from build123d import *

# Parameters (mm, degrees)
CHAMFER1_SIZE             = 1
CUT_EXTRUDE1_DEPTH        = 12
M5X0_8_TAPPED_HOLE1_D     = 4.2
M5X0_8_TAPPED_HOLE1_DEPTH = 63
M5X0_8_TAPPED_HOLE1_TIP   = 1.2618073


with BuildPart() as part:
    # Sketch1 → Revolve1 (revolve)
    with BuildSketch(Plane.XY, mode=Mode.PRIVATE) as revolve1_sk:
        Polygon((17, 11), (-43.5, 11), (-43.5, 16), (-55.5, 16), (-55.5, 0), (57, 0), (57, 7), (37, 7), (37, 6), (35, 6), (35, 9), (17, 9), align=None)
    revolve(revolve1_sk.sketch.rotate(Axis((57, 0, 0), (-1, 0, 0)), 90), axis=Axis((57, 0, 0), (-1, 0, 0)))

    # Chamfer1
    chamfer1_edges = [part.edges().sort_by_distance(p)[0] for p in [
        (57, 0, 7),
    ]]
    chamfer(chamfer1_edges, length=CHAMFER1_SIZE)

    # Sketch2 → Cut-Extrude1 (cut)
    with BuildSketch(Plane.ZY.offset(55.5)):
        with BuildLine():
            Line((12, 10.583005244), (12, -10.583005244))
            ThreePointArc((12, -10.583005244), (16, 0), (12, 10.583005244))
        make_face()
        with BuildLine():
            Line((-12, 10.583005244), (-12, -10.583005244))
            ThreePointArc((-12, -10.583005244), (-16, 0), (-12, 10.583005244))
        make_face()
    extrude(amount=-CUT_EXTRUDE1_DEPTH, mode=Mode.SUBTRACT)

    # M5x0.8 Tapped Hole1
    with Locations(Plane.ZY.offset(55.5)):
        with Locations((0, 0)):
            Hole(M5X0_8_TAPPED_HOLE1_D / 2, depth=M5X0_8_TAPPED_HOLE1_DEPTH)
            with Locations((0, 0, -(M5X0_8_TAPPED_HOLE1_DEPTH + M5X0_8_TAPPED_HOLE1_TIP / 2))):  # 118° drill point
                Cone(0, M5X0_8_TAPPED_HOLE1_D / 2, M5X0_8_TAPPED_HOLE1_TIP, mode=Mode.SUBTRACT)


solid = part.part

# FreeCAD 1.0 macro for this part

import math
import FreeCAD as App
import Part
import Sketcher
from FreeCAD import Vector
Q = App.Units.Quantity


def edges_at(feature, points):
    """Names of the edges that pass closest to the given points."""
    edges = feature.Shape.Edges
    near = lambda p: min(range(len(edges)), key=lambda i: edges[i].distToShape(Part.Vertex(*p))[0])
    return sorted({f"Edge{near(p) + 1}" for p in points})


def add_polygon(sketch, points):
    """Adds a closed chain of lines whose ends are joined by coincident constraints."""
    first, n = sketch.GeometryCount, len(points)
    for a, b in zip(points, points[1:] + points[:1]):
        sketch.addGeometry(Part.LineSegment(App.Vector(*a, 0), App.Vector(*b, 0)), False)
    for i in range(n):
        sketch.addConstraint(Sketcher.Constraint("Coincident", first + i, 2, first + (i + 1) % n, 1))

doc = App.newDocument("Part")
params = doc.addObject("Spreadsheet::Sheet", "Params")
for row, (alias, value) in enumerate([
    ("sketch1_width", "12 mm"),
    ("sketch1_width2", "20 mm"),
    ("sketch1_width3", "2 mm"),
    ("sketch1_width4", "18 mm"),
    ("sketch1_height", "5 mm"),
    ("revolution_angle", "360 deg"),
    ("chamfer_size", "1 mm"),
    ("sketch2_radius", "16 mm"),
    ("pocket1_length", "12 mm"),
    ("sketch3_diameter", "4.2 mm"),
    ("hole_diameter", "4.2 mm"),
    ("hole_depth", "63 mm"),
], start=1):
    params.set(f"A{row}", alias)
    params.set(f"B{row}", "=" + value)
    params.setAlias(f"B{row}", alias)

body = doc.addObject("PartDesign::Body", "Body")

# Sketch on XY plane
sketch1 = doc.addObject("Sketcher::SketchObject", "Sketch")
body.addObject(sketch1)
sketch1.AttachmentSupport = (doc.XY_Plane, [""])
sketch1.MapMode = "FlatFace"
add_polygon(sketch1, [(17, 11), (-43.5, 11), (-43.5, 16), (-55.5, 16), (-55.5, 0), (57, 0), (57, 7), (37, 7), (37, 6), (35, 6), (35, 9), (17, 9)])  # lines 0-11
sketch1.addConstraint([
    Sketcher.Constraint("Horizontal", 0),
    Sketcher.Constraint("Vertical", 1),
    Sketcher.Constraint("Horizontal", 2),
    Sketcher.Constraint("Vertical", 3),
    Sketcher.Constraint("Horizontal", 4),
    Sketcher.Constraint("Vertical", 5),
    Sketcher.Constraint("Horizontal", 6),
    Sketcher.Constraint("Vertical", 7),
    Sketcher.Constraint("Horizontal", 8),
    Sketcher.Constraint("Vertical", 9),
    Sketcher.Constraint("Horizontal", 10),
    Sketcher.Constraint("Vertical", 11),
    Sketcher.Constraint("PointOnObject", 3, 2, -1),
    Sketcher.Constraint("Equal", 8, 11),
    Sketcher.Constraint("DistanceX", 2, 2, 2, 1, Q("12 mm")),
    Sketcher.Constraint("DistanceX", 6, 2, 6, 1, Q("20 mm")),
    Sketcher.Constraint("DistanceX", 8, 2, 8, 1, Q("2 mm")),
    Sketcher.Constraint("DistanceX", 10, 2, 10, 1, Q("18 mm")),
    Sketcher.Constraint("DistanceY", 1, 1, 1, 2, Q("5 mm")),
    Sketcher.Constraint("DistanceY", 3, 2, 3, 1, Q("16 mm")),
    Sketcher.Constraint("DistanceY", 5, 1, 5, 2, Q("7 mm")),
    Sketcher.Constraint("DistanceY", 7, 2, 7, 1, Q("1 mm")),
    Sketcher.Constraint("DistanceX", 0, 2, 0, 1, Q("60.5 mm")),
    Sketcher.Constraint("DistanceX", -1, 1, 4, 2, Q("57 mm")),
])
sketch1.setExpression("Constraints[26]", "Params.sketch1_width")
sketch1.setExpression("Constraints[27]", "Params.sketch1_width2")
sketch1.setExpression("Constraints[28]", "Params.sketch1_width3")
sketch1.setExpression("Constraints[29]", "Params.sketch1_width4")
sketch1.setExpression("Constraints[30]", "Params.sketch1_height")
revolution = doc.addObject("PartDesign::Revolution", "Revolution")
body.addObject(revolution)
revolution.Profile = sketch1
revolution.ReferenceAxis = (sketch1, ["H_Axis"])
revolution.setExpression("Angle", "Params.revolution_angle")
doc.recompute()

chamfer = doc.addObject("PartDesign::Chamfer", "Chamfer")
body.addObject(chamfer)
chamfer.Base = (revolution, edges_at(revolution, [(57, 0, 7)]))
chamfer.setExpression("Size", "Params.chamfer_size")

# Sketch on YZ plane
sketch2 = doc.addObject("Sketcher::SketchObject", "Sketch001")
body.addObject(sketch2)
sketch2.AttachmentSupport = (doc.YZ_Plane, [""])
sketch2.MapMode = "FlatFace"
sketch2.AttachmentOffset = App.Placement(Vector(0, 0, -55.5), App.Rotation())
sketch2.addGeometry([
    Part.LineSegment(Vector(11, 12, 0), Vector(-11, 12, 0)),
    Part.ArcOfCircle(Part.Circle(Vector(0, 0, 0), Vector(0, 0, 1), 16), math.radians(49), math.radians(131)),
    Part.LineSegment(Vector(-11, -12, 0), Vector(11, -12, 0)),
    Part.ArcOfCircle(Part.Circle(Vector(0, 0, 0), Vector(0, 0, 1), 16), math.radians(-131), math.radians(-49)),
], False)
sketch2.addConstraint([
    Sketcher.Constraint("Coincident", 0, 1, 1, 1),
    Sketcher.Constraint("Coincident", 1, 2, 0, 2),
    Sketcher.Constraint("Coincident", 2, 1, 3, 1),
    Sketcher.Constraint("Coincident", 3, 2, 2, 2),
    Sketcher.Constraint("Horizontal", 0),
    Sketcher.Constraint("Horizontal", 2),
    Sketcher.Constraint("Coincident", 1, 3, -1, 1),
    Sketcher.Constraint("Coincident", 3, 3, -1, 1),
    Sketcher.Constraint("Equal", 1, 3),
    Sketcher.Constraint("Vertical", 1, 2, 2, 1),
    Sketcher.Constraint("Radius", 1, Q("16 mm")),
    Sketcher.Constraint("DistanceY", -1, 1, 0, 1, Q("12 mm")),
])
sketch2.setExpression("Constraints[10]", "Params.sketch2_radius")
pocket1 = doc.addObject("PartDesign::Pocket", "Pocket")
body.addObject(pocket1)
pocket1.Profile = sketch2
pocket1.setExpression("Length", "Params.pocket1_length")
pocket1.Reversed = True

# Sketch on YZ plane
sketch3 = doc.addObject("Sketcher::SketchObject", "Sketch002")
body.addObject(sketch3)
sketch3.AttachmentSupport = (doc.YZ_Plane, [""])
sketch3.MapMode = "FlatFace"
sketch3.AttachmentOffset = App.Placement(Vector(0, 0, -55.5), App.Rotation())
sketch3.addGeometry(Part.Circle(Vector(0, 0, 0), Vector(0, 0, 1), 2.1), False)
sketch3.addConstraint([
    Sketcher.Constraint("Coincident", 0, 3, -1, 1),
    Sketcher.Constraint("Diameter", 0, Q("4.2 mm")),
])
sketch3.setExpression("Constraints[1]", "Params.sketch3_diameter")
doc.recompute()
hole = doc.addObject("PartDesign::Hole", "Hole")
body.addObject(hole)
hole.Profile = sketch3
hole.ThreadType = "None"
hole.setExpression("Diameter", "Params.hole_diameter")
hole.DepthType = "Dimension"
hole.setExpression("Depth", "Params.hole_depth")
hole.DrillPoint = "Angled"
hole.DrillPointAngle = 118
hole.Reversed = True

doc.recompute()
